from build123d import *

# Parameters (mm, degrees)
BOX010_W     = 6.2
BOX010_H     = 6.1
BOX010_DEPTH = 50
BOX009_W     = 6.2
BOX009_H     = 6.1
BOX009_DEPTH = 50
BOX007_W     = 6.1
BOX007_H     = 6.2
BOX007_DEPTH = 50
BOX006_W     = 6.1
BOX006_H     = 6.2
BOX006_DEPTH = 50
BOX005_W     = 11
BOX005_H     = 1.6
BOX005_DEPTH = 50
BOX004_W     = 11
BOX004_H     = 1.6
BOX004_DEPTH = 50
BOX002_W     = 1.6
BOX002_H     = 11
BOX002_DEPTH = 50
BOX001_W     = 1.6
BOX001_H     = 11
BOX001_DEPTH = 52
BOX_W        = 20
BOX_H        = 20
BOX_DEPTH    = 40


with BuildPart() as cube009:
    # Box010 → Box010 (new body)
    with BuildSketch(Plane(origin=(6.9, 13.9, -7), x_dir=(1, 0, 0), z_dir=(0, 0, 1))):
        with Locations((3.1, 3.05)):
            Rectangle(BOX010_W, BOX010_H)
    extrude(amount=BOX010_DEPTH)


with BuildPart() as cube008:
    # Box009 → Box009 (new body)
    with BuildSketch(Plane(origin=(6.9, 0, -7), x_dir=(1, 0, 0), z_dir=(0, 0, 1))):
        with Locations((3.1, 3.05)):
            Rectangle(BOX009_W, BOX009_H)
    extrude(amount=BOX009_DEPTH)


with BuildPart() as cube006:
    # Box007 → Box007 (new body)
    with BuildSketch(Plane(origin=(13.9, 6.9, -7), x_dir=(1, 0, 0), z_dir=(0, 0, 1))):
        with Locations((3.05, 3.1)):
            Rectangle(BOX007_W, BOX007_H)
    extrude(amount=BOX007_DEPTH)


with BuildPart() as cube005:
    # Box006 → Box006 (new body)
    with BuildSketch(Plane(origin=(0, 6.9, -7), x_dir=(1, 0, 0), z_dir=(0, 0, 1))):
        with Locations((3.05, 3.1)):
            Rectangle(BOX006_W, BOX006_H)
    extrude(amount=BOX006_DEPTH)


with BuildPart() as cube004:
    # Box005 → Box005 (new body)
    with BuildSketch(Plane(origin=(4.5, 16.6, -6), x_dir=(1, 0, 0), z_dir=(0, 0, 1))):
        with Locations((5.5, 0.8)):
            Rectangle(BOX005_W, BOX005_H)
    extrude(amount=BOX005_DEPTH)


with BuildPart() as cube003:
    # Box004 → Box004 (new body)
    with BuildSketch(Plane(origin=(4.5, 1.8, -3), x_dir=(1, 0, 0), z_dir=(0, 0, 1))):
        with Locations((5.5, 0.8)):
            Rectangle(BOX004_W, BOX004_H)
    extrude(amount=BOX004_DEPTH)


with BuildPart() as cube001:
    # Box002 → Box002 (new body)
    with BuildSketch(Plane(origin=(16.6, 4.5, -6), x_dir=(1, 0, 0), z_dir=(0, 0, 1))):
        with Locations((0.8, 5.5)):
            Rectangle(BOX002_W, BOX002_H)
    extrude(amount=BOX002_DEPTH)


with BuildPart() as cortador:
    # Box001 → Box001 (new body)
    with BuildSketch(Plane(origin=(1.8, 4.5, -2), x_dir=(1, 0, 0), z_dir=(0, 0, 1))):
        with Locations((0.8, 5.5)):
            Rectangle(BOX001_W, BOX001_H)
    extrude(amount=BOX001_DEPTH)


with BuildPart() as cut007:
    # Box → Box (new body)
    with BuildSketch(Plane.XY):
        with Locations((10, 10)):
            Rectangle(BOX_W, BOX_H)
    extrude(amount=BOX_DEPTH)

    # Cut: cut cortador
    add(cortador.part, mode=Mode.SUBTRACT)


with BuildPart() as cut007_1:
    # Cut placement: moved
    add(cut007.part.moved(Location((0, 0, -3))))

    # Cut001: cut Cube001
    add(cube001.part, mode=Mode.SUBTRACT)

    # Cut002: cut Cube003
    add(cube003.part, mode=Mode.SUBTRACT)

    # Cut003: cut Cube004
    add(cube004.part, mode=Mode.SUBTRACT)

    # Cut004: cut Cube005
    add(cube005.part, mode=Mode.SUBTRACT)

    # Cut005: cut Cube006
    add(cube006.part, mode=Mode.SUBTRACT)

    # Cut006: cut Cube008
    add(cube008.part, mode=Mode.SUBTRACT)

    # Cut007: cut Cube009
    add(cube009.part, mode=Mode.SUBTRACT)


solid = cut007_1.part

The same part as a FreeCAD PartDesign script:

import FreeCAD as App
import Part
import Sketcher

V = App.Vector

doc = App.newDocument("Part")
body = doc.addObject("PartDesign::Body", "Body")

# Sketch on XY plane
sketch1 = body.newObject("Sketcher::SketchObject", "Sketch")
sketch1.AttachmentSupport = (doc.getObject("XY_Plane"), [""])
sketch1.MapMode = "FlatFace"
sketch1.AttachmentOffset = App.Placement(V(0, 0, -7), App.Rotation())
sketch1.addGeometry(Part.LineSegment(V(7, 20, 0), V(7, 14, 0)), False)
sketch1.addGeometry(Part.LineSegment(V(7, 14, 0), V(13, 14, 0)), False)
sketch1.addGeometry(Part.LineSegment(V(13, 14, 0), V(13, 20, 0)), False)
sketch1.addGeometry(Part.LineSegment(V(13, 20, 0), V(7, 20, 0)), False)
sketch1.addConstraint(Sketcher.Constraint("Coincident", 0, 2, 1, 1))
sketch1.addConstraint(Sketcher.Constraint("Coincident", 1, 2, 2, 1))
sketch1.addConstraint(Sketcher.Constraint("Coincident", 2, 2, 3, 1))
sketch1.addConstraint(Sketcher.Constraint("Coincident", 3, 2, 0, 1))
sketch1.addConstraint(Sketcher.Constraint("Vertical", 0))
sketch1.addConstraint(Sketcher.Constraint("Horizontal", 1))
sketch1.addConstraint(Sketcher.Constraint("Vertical", 2))
sketch1.addConstraint(Sketcher.Constraint("Horizontal", 3))
sketch1.addConstraint(Sketcher.Constraint("DistanceX", 1, 1, 1, 2, 6.2))
sketch1.addConstraint(Sketcher.Constraint("DistanceY", 0, 2, 0, 1, 6.1))
sketch1.addConstraint(Sketcher.Constraint("DistanceY", -1, 1, 2, 2, 20.0))
sketch1.addConstraint(Sketcher.Constraint("DistanceX", -1, 1, 0, 2, 6.9))
pad1 = body.newObject("PartDesign::Pad", "Pad")
pad1.Profile = sketch1
pad1.Length = 50
body2 = doc.addObject("PartDesign::Body", "Body001")

# Sketch on XY plane
sketch2 = body2.newObject("Sketcher::SketchObject", "Sketch001")
sketch2.AttachmentSupport = (doc.getObject("XY_Plane001"), [""])
sketch2.MapMode = "FlatFace"
sketch2.AttachmentOffset = App.Placement(V(0, 0, -7), App.Rotation())
sketch2.addGeometry(Part.LineSegment(V(7, 6, 0), V(7, 0, 0)), False)
sketch2.addGeometry(Part.LineSegment(V(7, 0, 0), V(13, 0, 0)), False)
sketch2.addGeometry(Part.LineSegment(V(13, 0, 0), V(13, 6, 0)), False)
sketch2.addGeometry(Part.LineSegment(V(13, 6, 0), V(7, 6, 0)), False)
sketch2.addConstraint(Sketcher.Constraint("Coincident", 0, 2, 1, 1))
sketch2.addConstraint(Sketcher.Constraint("Coincident", 1, 2, 2, 1))
sketch2.addConstraint(Sketcher.Constraint("Coincident", 2, 2, 3, 1))
sketch2.addConstraint(Sketcher.Constraint("Coincident", 3, 2, 0, 1))
sketch2.addConstraint(Sketcher.Constraint("Vertical", 0))
sketch2.addConstraint(Sketcher.Constraint("Horizontal", 1))
sketch2.addConstraint(Sketcher.Constraint("Vertical", 2))
sketch2.addConstraint(Sketcher.Constraint("Horizontal", 3))
sketch2.addConstraint(Sketcher.Constraint("PointOnObject", 0, 2, -1))
sketch2.addConstraint(Sketcher.Constraint("DistanceX", 1, 1, 1, 2, 6.2))
sketch2.addConstraint(Sketcher.Constraint("DistanceY", 0, 2, 0, 1, 6.1))
sketch2.addConstraint(Sketcher.Constraint("DistanceX", -1, 1, 0, 2, 6.9))
pad2 = body2.newObject("PartDesign::Pad", "Pad001")
pad2.Profile = sketch2
pad2.Length = 50
body3 = doc.addObject("PartDesign::Body", "Body002")

# Sketch on XY plane
sketch3 = body3.newObject("Sketcher::SketchObject", "Sketch002")
sketch3.AttachmentSupport = (doc.getObject("XY_Plane002"), [""])
sketch3.MapMode = "FlatFace"
sketch3.AttachmentOffset = App.Placement(V(0, 0, -7), App.Rotation())
sketch3.addGeometry(Part.LineSegment(V(14, 13, 0), V(14, 7, 0)), False)
sketch3.addGeometry(Part.LineSegment(V(14, 7, 0), V(20, 7, 0)), False)
sketch3.addGeometry(Part.LineSegment(V(20, 7, 0), V(20, 13, 0)), False)
sketch3.addGeometry(Part.LineSegment(V(20, 13, 0), V(14, 13, 0)), False)
sketch3.addConstraint(Sketcher.Constraint("Coincident", 0, 2, 1, 1))
sketch3.addConstraint(Sketcher.Constraint("Coincident", 1, 2, 2, 1))
sketch3.addConstraint(Sketcher.Constraint("Coincident", 2, 2, 3, 1))
sketch3.addConstraint(Sketcher.Constraint("Coincident", 3, 2, 0, 1))
sketch3.addConstraint(Sketcher.Constraint("Vertical", 0))
sketch3.addConstraint(Sketcher.Constraint("Horizontal", 1))
sketch3.addConstraint(Sketcher.Constraint("Vertical", 2))
sketch3.addConstraint(Sketcher.Constraint("Horizontal", 3))
sketch3.addConstraint(Sketcher.Constraint("DistanceX", 1, 1, 1, 2, 6.1))
sketch3.addConstraint(Sketcher.Constraint("DistanceY", 0, 2, 0, 1, 6.2))
sketch3.addConstraint(Sketcher.Constraint("DistanceX", -1, 1, 1, 2, 20.0))
sketch3.addConstraint(Sketcher.Constraint("DistanceY", -1, 1, 0, 2, 6.9))
pad3 = body3.newObject("PartDesign::Pad", "Pad002")
pad3.Profile = sketch3
pad3.Length = 50
body4 = doc.addObject("PartDesign::Body", "Body003")

# Sketch on XY plane
sketch4 = body4.newObject("Sketcher::SketchObject", "Sketch003")
sketch4.AttachmentSupport = (doc.getObject("XY_Plane003"), [""])
sketch4.MapMode = "FlatFace"
sketch4.AttachmentOffset = App.Placement(V(0, 0, -7), App.Rotation())
sketch4.addGeometry(Part.LineSegment(V(0, 13, 0), V(0, 7, 0)), False)
sketch4.addGeometry(Part.LineSegment(V(0, 7, 0), V(6, 7, 0)), False)
sketch4.addGeometry(Part.LineSegment(V(6, 7, 0), V(6, 13, 0)), False)
sketch4.addGeometry(Part.LineSegment(V(6, 13, 0), V(0, 13, 0)), False)
sketch4.addConstraint(Sketcher.Constraint("Coincident", 0, 2, 1, 1))
sketch4.addConstraint(Sketcher.Constraint("Coincident", 1, 2, 2, 1))
sketch4.addConstraint(Sketcher.Constraint("Coincident", 2, 2, 3, 1))
sketch4.addConstraint(Sketcher.Constraint("Coincident", 3, 2, 0, 1))
sketch4.addConstraint(Sketcher.Constraint("Vertical", 0))
sketch4.addConstraint(Sketcher.Constraint("Horizontal", 1))
sketch4.addConstraint(Sketcher.Constraint("Vertical", 2))
sketch4.addConstraint(Sketcher.Constraint("Horizontal", 3))
sketch4.addConstraint(Sketcher.Constraint("PointOnObject", 0, 2, -2))
sketch4.addConstraint(Sketcher.Constraint("DistanceX", 1, 1, 1, 2, 6.1))
sketch4.addConstraint(Sketcher.Constraint("DistanceY", 0, 2, 0, 1, 6.2))
sketch4.addConstraint(Sketcher.Constraint("DistanceY", -1, 1, 0, 2, 6.9))
pad4 = body4.newObject("PartDesign::Pad", "Pad003")
pad4.Profile = sketch4
pad4.Length = 50
body5 = doc.addObject("PartDesign::Body", "Body004")

# Sketch on XY plane
sketch5 = body5.newObject("Sketcher::SketchObject", "Sketch004")
sketch5.AttachmentSupport = (doc.getObject("XY_Plane004"), [""])
sketch5.MapMode = "FlatFace"
sketch5.AttachmentOffset = App.Placement(V(0, 0, -6), App.Rotation())
sketch5.addGeometry(Part.LineSegment(V(4.5, 18.2, 0), V(4.5, 16.6, 0)), False)
sketch5.addGeometry(Part.LineSegment(V(4.5, 16.6, 0), V(15.5, 16.6, 0)), False)
sketch5.addGeometry(Part.LineSegment(V(15.5, 16.6, 0), V(15.5, 18.2, 0)), False)
sketch5.addGeometry(Part.LineSegment(V(15.5, 18.2, 0), V(4.5, 18.2, 0)), False)
sketch5.addConstraint(Sketcher.Constraint("Coincident", 0, 2, 1, 1))
sketch5.addConstraint(Sketcher.Constraint("Coincident", 1, 2, 2, 1))
sketch5.addConstraint(Sketcher.Constraint("Coincident", 2, 2, 3, 1))
sketch5.addConstraint(Sketcher.Constraint("Coincident", 3, 2, 0, 1))
sketch5.addConstraint(Sketcher.Constraint("Vertical", 0))
sketch5.addConstraint(Sketcher.Constraint("Horizontal", 1))
sketch5.addConstraint(Sketcher.Constraint("Vertical", 2))
sketch5.addConstraint(Sketcher.Constraint("Horizontal", 3))
sketch5.addConstraint(Sketcher.Constraint("DistanceX", 1, 1, 1, 2, 11.0))
sketch5.addConstraint(Sketcher.Constraint("DistanceY", 0, 2, 0, 1, 1.6))
sketch5.addConstraint(Sketcher.Constraint("DistanceX", -1, 1, 0, 2, 4.5))
sketch5.addConstraint(Sketcher.Constraint("DistanceY", -1, 1, 0, 2, 16.6))
pad5 = body5.newObject("PartDesign::Pad", "Pad004")
pad5.Profile = sketch5
pad5.Length = 50
body6 = doc.addObject("PartDesign::Body", "Body005")

# Sketch on XY plane
sketch6 = body6.newObject("Sketcher::SketchObject", "Sketch005")
sketch6.AttachmentSupport = (doc.getObject("XY_Plane005"), [""])
sketch6.MapMode = "FlatFace"
sketch6.AttachmentOffset = App.Placement(V(0, 0, -3), App.Rotation())
sketch6.addGeometry(Part.LineSegment(V(4.5, 3.4, 0), V(4.5, 1.8, 0)), False)
sketch6.addGeometry(Part.LineSegment(V(4.5, 1.8, 0), V(15.5, 1.8, 0)), False)
sketch6.addGeometry(Part.LineSegment(V(15.5, 1.8, 0), V(15.5, 3.4, 0)), False)
sketch6.addGeometry(Part.LineSegment(V(15.5, 3.4, 0), V(4.5, 3.4, 0)), False)
sketch6.addConstraint(Sketcher.Constraint("Coincident", 0, 2, 1, 1))
sketch6.addConstraint(Sketcher.Constraint("Coincident", 1, 2, 2, 1))
sketch6.addConstraint(Sketcher.Constraint("Coincident", 2, 2, 3, 1))
sketch6.addConstraint(Sketcher.Constraint("Coincident", 3, 2, 0, 1))
sketch6.addConstraint(Sketcher.Constraint("Vertical", 0))
sketch6.addConstraint(Sketcher.Constraint("Horizontal", 1))
sketch6.addConstraint(Sketcher.Constraint("Vertical", 2))
sketch6.addConstraint(Sketcher.Constraint("Horizontal", 3))
sketch6.addConstraint(Sketcher.Constraint("DistanceX", 1, 1, 1, 2, 11.0))
sketch6.addConstraint(Sketcher.Constraint("DistanceY", 0, 2, 0, 1, 1.6))
sketch6.addConstraint(Sketcher.Constraint("DistanceX", -1, 1, 0, 2, 4.5))
sketch6.addConstraint(Sketcher.Constraint("DistanceY", -1, 1, 0, 2, 1.8))
pad6 = body6.newObject("PartDesign::Pad", "Pad005")
pad6.Profile = sketch6
pad6.Length = 50
body7 = doc.addObject("PartDesign::Body", "Body006")

# Sketch on XY plane
sketch7 = body7.newObject("Sketcher::SketchObject", "Sketch006")
sketch7.AttachmentSupport = (doc.getObject("XY_Plane006"), [""])
sketch7.MapMode = "FlatFace"
sketch7.AttachmentOffset = App.Placement(V(0, 0, -6), App.Rotation())
sketch7.addGeometry(Part.LineSegment(V(16.6, 15.5, 0), V(16.6, 4.5, 0)), False)
sketch7.addGeometry(Part.LineSegment(V(16.6, 4.5, 0), V(18.2, 4.5, 0)), False)
sketch7.addGeometry(Part.LineSegment(V(18.2, 4.5, 0), V(18.2, 15.5, 0)), False)
sketch7.addGeometry(Part.LineSegment(V(18.2, 15.5, 0), V(16.6, 15.5, 0)), False)
sketch7.addConstraint(Sketcher.Constraint("Coincident", 0, 2, 1, 1))
sketch7.addConstraint(Sketcher.Constraint("Coincident", 1, 2, 2, 1))
sketch7.addConstraint(Sketcher.Constraint("Coincident", 2, 2, 3, 1))
sketch7.addConstraint(Sketcher.Constraint("Coincident", 3, 2, 0, 1))
sketch7.addConstraint(Sketcher.Constraint("Vertical", 0))
sketch7.addConstraint(Sketcher.Constraint("Horizontal", 1))
sketch7.addConstraint(Sketcher.Constraint("Vertical", 2))
sketch7.addConstraint(Sketcher.Constraint("Horizontal", 3))
sketch7.addConstraint(Sketcher.Constraint("DistanceY", 0, 2, 0, 1, 11.0))
sketch7.addConstraint(Sketcher.Constraint("DistanceX", 1, 1, 1, 2, 1.6))
sketch7.addConstraint(Sketcher.Constraint("DistanceX", -1, 1, 0, 2, 16.6))
sketch7.addConstraint(Sketcher.Constraint("DistanceY", -1, 1, 0, 2, 4.5))
pad7 = body7.newObject("PartDesign::Pad", "Pad006")
pad7.Profile = sketch7
pad7.Length = 50
body8 = doc.addObject("PartDesign::Body", "Body007")

# Sketch on XY plane
sketch8 = body8.newObject("Sketcher::SketchObject", "Sketch007")
sketch8.AttachmentSupport = (doc.getObject("XY_Plane007"), [""])
sketch8.MapMode = "FlatFace"
sketch8.AttachmentOffset = App.Placement(V(0, 0, -2), App.Rotation())
sketch8.addGeometry(Part.LineSegment(V(1.8, 15.5, 0), V(1.8, 4.5, 0)), False)
sketch8.addGeometry(Part.LineSegment(V(1.8, 4.5, 0), V(3.4, 4.5, 0)), False)
sketch8.addGeometry(Part.LineSegment(V(3.4, 4.5, 0), V(3.4, 15.5, 0)), False)
sketch8.addGeometry(Part.LineSegment(V(3.4, 15.5, 0), V(1.8, 15.5, 0)), False)
sketch8.addConstraint(Sketcher.Constraint("Coincident", 0, 2, 1, 1))
sketch8.addConstraint(Sketcher.Constraint("Coincident", 1, 2, 2, 1))
sketch8.addConstraint(Sketcher.Constraint("Coincident", 2, 2, 3, 1))
sketch8.addConstraint(Sketcher.Constraint("Coincident", 3, 2, 0, 1))
sketch8.addConstraint(Sketcher.Constraint("Vertical", 0))
sketch8.addConstraint(Sketcher.Constraint("Horizontal", 1))
sketch8.addConstraint(Sketcher.Constraint("Vertical", 2))
sketch8.addConstraint(Sketcher.Constraint("Horizontal", 3))
sketch8.addConstraint(Sketcher.Constraint("DistanceY", 0, 2, 0, 1, 11.0))
sketch8.addConstraint(Sketcher.Constraint("DistanceX", 1, 1, 1, 2, 1.6))
sketch8.addConstraint(Sketcher.Constraint("DistanceX", -1, 1, 0, 2, 1.8))
sketch8.addConstraint(Sketcher.Constraint("DistanceY", -1, 1, 0, 2, 4.5))
pad8 = body8.newObject("PartDesign::Pad", "Pad007")
pad8.Profile = sketch8
pad8.Length = 52
body9 = doc.addObject("PartDesign::Body", "Body008")

# Sketch on XY plane
sketch9 = body9.newObject("Sketcher::SketchObject", "Sketch008")
sketch9.AttachmentSupport = (doc.getObject("XY_Plane008"), [""])
sketch9.MapMode = "FlatFace"
sketch9.addGeometry(Part.LineSegment(V(0, 20, 0), V(0, 0, 0)), False)
sketch9.addGeometry(Part.LineSegment(V(0, 0, 0), V(20, 0, 0)), False)
sketch9.addGeometry(Part.LineSegment(V(20, 0, 0), V(20, 20, 0)), False)
sketch9.addGeometry(Part.LineSegment(V(20, 20, 0), V(0, 20, 0)), False)
sketch9.addConstraint(Sketcher.Constraint("Coincident", 0, 2, 1, 1))
sketch9.addConstraint(Sketcher.Constraint("Coincident", 1, 2, 2, 1))
sketch9.addConstraint(Sketcher.Constraint("Coincident", 2, 2, 3, 1))
sketch9.addConstraint(Sketcher.Constraint("Coincident", 3, 2, 0, 1))
sketch9.addConstraint(Sketcher.Constraint("Vertical", 0))
sketch9.addConstraint(Sketcher.Constraint("Horizontal", 1))
sketch9.addConstraint(Sketcher.Constraint("Vertical", 2))
sketch9.addConstraint(Sketcher.Constraint("Horizontal", 3))
sketch9.addConstraint(Sketcher.Constraint("Coincident", 0, 2, -1, 1))
sketch9.addConstraint(Sketcher.Constraint("Equal", 3, 0))
sketch9.addConstraint(Sketcher.Constraint("DistanceX", 1, 1, 1, 2, 20.0))
pad9 = body9.newObject("PartDesign::Pad", "Pad008")
pad9.Profile = sketch9
pad9.Length = 40
doc.recompute()

boolean = body9.newObject("PartDesign::Boolean", "Boolean")
boolean.Type = "Cut"
boolean.addObjects([body8])
body10 = doc.addObject("PartDesign::Body", "Body009")
doc.recompute()

body9.Placement = App.Placement(V(0, 0, -3), App.Rotation(V(0, 0, 1), 0))
boolean2 = body10.newObject("PartDesign::Boolean", "Boolean001")
boolean2.Type = "Fuse"
boolean2.addObjects([body9])
doc.recompute()

boolean3 = body10.newObject("PartDesign::Boolean", "Boolean002")
boolean3.Type = "Cut"
boolean3.addObjects([body7])
doc.recompute()

boolean4 = body10.newObject("PartDesign::Boolean", "Boolean003")
boolean4.Type = "Cut"
boolean4.addObjects([body6])
doc.recompute()

boolean5 = body10.newObject("PartDesign::Boolean", "Boolean004")
boolean5.Type = "Cut"
boolean5.addObjects([body5])
doc.recompute()

boolean6 = body10.newObject("PartDesign::Boolean", "Boolean005")
boolean6.Type = "Cut"
boolean6.addObjects([body4])
doc.recompute()

boolean7 = body10.newObject("PartDesign::Boolean", "Boolean006")
boolean7.Type = "Cut"
boolean7.addObjects([body3])
doc.recompute()

boolean8 = body10.newObject("PartDesign::Boolean", "Boolean007")
boolean8.Type = "Cut"
boolean8.addObjects([body2])
doc.recompute()

boolean9 = body10.newObject("PartDesign::Boolean", "Boolean008")
boolean9.Type = "Cut"
boolean9.addObjects([body])

doc.recompute()
